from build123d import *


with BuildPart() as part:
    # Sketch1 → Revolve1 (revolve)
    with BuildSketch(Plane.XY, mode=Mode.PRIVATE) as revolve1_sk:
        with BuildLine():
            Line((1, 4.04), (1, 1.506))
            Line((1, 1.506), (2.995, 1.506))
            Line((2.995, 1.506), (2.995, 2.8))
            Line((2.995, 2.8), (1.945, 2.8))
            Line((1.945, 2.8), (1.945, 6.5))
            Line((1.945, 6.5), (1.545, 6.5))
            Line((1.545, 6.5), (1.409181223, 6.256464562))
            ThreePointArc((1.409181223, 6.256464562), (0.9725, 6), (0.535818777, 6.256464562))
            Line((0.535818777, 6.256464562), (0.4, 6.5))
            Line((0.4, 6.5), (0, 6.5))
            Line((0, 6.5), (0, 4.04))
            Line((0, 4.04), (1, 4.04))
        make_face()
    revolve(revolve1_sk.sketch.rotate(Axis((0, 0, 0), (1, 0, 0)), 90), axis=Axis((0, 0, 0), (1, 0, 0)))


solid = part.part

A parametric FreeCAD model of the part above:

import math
import FreeCAD as App
import Part
import Sketcher
from FreeCAD import Vector

doc = App.newDocument("Part")
body = doc.addObject("PartDesign::Body", "Body")

sketch1 = doc.addObject("Sketcher::SketchObject", "Sketch")
body.addObject(sketch1)
sketch1.AttachmentSupport = (doc.XY_Plane, [""])
sketch1.MapMode = "FlatFace"
sketch1.addGeometry([
    Part.LineSegment(Vector(1, 4.04, 0), Vector(1, 1.51, 0)),
    Part.LineSegment(Vector(1, 1.51, 0), Vector(3, 1.51, 0)),
    Part.LineSegment(Vector(3, 1.51, 0), Vector(3, 2.8, 0)),
    Part.LineSegment(Vector(3, 2.8, 0), Vector(1.95, 2.8, 0)),
    Part.LineSegment(Vector(1.95, 2.8, 0), Vector(1.95, 6.5, 0)),
    Part.LineSegment(Vector(1.95, 6.5, 0), Vector(1.54, 6.5, 0)),
    Part.LineSegment(Vector(1.54, 6.5, 0), Vector(1.41, 6.26, 0)),
    Part.ArcOfCircle(Part.Circle(Vector(0.97, 6.5, 0), Vector(0, 0, 1), 0.5), math.radians(-151), math.radians(-29)),
    Part.LineSegment(Vector(0.54, 6.26, 0), Vector(0.4, 6.5, 0)),
    Part.LineSegment(Vector(0.4, 6.5, 0), Vector(0, 6.5, 0)),
    Part.LineSegment(Vector(0, 6.5, 0), Vector(0, 4.04, 0)),
    Part.LineSegment(Vector(0, 4.04, 0), Vector(1, 4.04, 0)),
], False)
sketch1.addConstraint([
    Sketcher.Constraint("Coincident", 0, 2, 1, 1),
    Sketcher.Constraint("Coincident", 1, 2, 2, 1),
    Sketcher.Constraint("Coincident", 2, 2, 3, 1),
    Sketcher.Constraint("Coincident", 3, 2, 4, 1),
    Sketcher.Constraint("Coincident", 4, 2, 5, 1),
    Sketcher.Constraint("Coincident", 5, 2, 6, 1),
    Sketcher.Constraint("Tangent", 6, 2, 7, 2),
    Sketcher.Constraint("Tangent", 7, 1, 8, 1),
    Sketcher.Constraint("Coincident", 8, 2, 9, 1),
    Sketcher.Constraint("Coincident", 9, 2, 10, 1),
    Sketcher.Constraint("Coincident", 10, 2, 11, 1),
    Sketcher.Constraint("Coincident", 11, 2, 0, 1),
    Sketcher.Constraint("Vertical", 0),
    Sketcher.Constraint("Horizontal", 1),
    Sketcher.Constraint("Vertical", 2),
    Sketcher.Constraint("Horizontal", 3),
    Sketcher.Constraint("Vertical", 4),
    Sketcher.Constraint("Horizontal", 5),
    Sketcher.Constraint("Horizontal", 9),
    Sketcher.Constraint("Vertical", 10),
    Sketcher.Constraint("Horizontal", 11),
    Sketcher.Constraint("PointOnObject", 9, 2, -2),
    Sketcher.Constraint("Horizontal", 7, 3, 4, 2),
    Sketcher.Constraint("Horizontal", 6, 2, 7, 1),
    Sketcher.Constraint("Horizontal", 5, 2, 8, 2),
    Sketcher.Constraint("Equal", 5, 9),
    Sketcher.Constraint("Radius", 7, 0.5),
    Sketcher.Constraint("DistanceX", 11, 1, 11, 2, 1.0),
    Sketcher.Constraint("DistanceX", 5, 2, 5, 1, 0.4),
    Sketcher.Constraint("DistanceY", 4, 1, 4, 2, 3.7),
    Sketcher.Constraint("DistanceX", 3, 2, 3, 1, 1.05),
    Sketcher.Constraint("DistanceY", 10, 2, 10, 1, 2.46),
    Sketcher.Constraint("DistanceY", -1, 1, 7, 3, 6.5),
    Sketcher.Constraint("DistanceX", 1, 1, 1, 2, 1.995),
    Sketcher.Constraint("DistanceY", 0, 2, 0, 1, 2.534),
])
revolution = doc.addObject("PartDesign::Revolution", "Revolution")
body.addObject(revolution)
revolution.Profile = sketch1
revolution.ReferenceAxis = (sketch1, ["H_Axis"])
revolution.Angle = 360

doc.recompute()
